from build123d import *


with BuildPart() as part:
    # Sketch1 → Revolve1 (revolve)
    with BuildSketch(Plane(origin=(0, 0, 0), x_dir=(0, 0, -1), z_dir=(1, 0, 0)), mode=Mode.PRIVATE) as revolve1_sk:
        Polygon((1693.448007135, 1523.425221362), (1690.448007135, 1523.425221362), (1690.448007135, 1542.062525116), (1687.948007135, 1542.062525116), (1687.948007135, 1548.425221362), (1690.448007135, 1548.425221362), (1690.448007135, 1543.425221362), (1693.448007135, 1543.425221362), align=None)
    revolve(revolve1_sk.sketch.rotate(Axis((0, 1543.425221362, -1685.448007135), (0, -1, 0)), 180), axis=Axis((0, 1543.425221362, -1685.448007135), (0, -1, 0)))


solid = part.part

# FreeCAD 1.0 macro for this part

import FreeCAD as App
import Part
import Sketcher
from FreeCAD import Vector


def add_polygon(sketch, points):
    """Adds a closed chain of lines whose ends are joined by coincident constraints."""
    first, n = sketch.GeometryCount, len(points)
    for a, b in zip(points, points[1:] + points[:1]):
        sketch.addGeometry(Part.LineSegment(App.Vector(*a, 0), App.Vector(*b, 0)), False)
    for i in range(n):
        sketch.addConstraint(Sketcher.Constraint("Coincident", first + i, 2, first + (i + 1) % n, 1))

doc = App.newDocument("Part")
params = doc.addObject("Spreadsheet::Sheet", "Params")
for row, (alias, value) in enumerate([
    ("sketch1_width", "20 mm"),
    ("sketch1_width2", "5 mm"),
    ("sketch1_height", "3 mm"),
    ("sketch1_height2", "2.5 mm"),
    ("revolution_angle", "360 deg"),
], start=1):
    params.set(f"A{row}", alias)
    params.set(f"B{row}", "=" + value)
    params.setAlias(f"B{row}", alias)

body = doc.addObject("PartDesign::Body", "Body")

# Sketch on YZ plane
sketch1 = body.newObject("Sketcher::SketchObject", "Sketch")
sketch1.AttachmentSupport = (doc.getObject("YZ_Plane"), [""])
sketch1.MapMode = "FlatFace"
add_polygon(sketch1, [(1523.4, -1690.4), (1523.4, -1693.4), (1543.4, -1693.4), (1543.4, -1690.4), (1548.4, -1690.4), (1548.4, -1687.9), (1542.1, -1687.9), (1542.1, -1690.4)])  # lines 0-7
sketch1.addGeometry(Part.LineSegment(Vector(1548.4, -1685.4, 0), Vector(1523.4, -1685.4, 0)), True)  # axis
sketch1.addConstraint([
    Sketcher.Constraint("Vertical", 0),
    Sketcher.Constraint("Horizontal", 1),
    Sketcher.Constraint("Vertical", 2),
    Sketcher.Constraint("Horizontal", 3),
    Sketcher.Constraint("Vertical", 4),
    Sketcher.Constraint("Horizontal", 5),
    Sketcher.Constraint("Vertical", 6),
    Sketcher.Constraint("Horizontal", 7),
    Sketcher.Constraint("Horizontal", 8),
    Sketcher.Constraint("Horizontal", 3, 2, 6, 2),
    Sketcher.Constraint("Vertical", 4, 2, 8, 1),
    Sketcher.Constraint("Vertical", 7, 2, 8, 2),
    Sketcher.Constraint("DistanceX", 1, 1, 1, 2, 20.0),
    Sketcher.Constraint("DistanceX", 3, 1, 3, 2, 5.0),
    Sketcher.Constraint("DistanceY", 0, 2, 0, 1, 3.0),
    Sketcher.Constraint("DistanceY", 4, 1, 4, 2, 2.5),
    Sketcher.Constraint("DistanceY", 3, 2, 8, 1, 5.0),
    Sketcher.Constraint("DistanceX", 5, 2, 5, 1, 6.362696),
    Sketcher.Constraint("DistanceX", -1, 1, 0, 2, 1523.425221),
    Sketcher.Constraint("DistanceY", 0, 2, -1, 1, 1693.448007),
])
sketch1.setExpression("Constraints[20]", "Params.sketch1_width")
sketch1.setExpression("Constraints[21]", "Params.sketch1_width2")
sketch1.setExpression("Constraints[22]", "Params.sketch1_height")
sketch1.setExpression("Constraints[23]", "Params.sketch1_height2")
revolution = body.newObject("PartDesign::Revolution", "Revolution")
revolution.Profile = sketch1
revolution.ReferenceAxis = (sketch1, ["Axis0"])
revolution.setExpression("Angle", "Params.revolution_angle")

doc.recompute()
